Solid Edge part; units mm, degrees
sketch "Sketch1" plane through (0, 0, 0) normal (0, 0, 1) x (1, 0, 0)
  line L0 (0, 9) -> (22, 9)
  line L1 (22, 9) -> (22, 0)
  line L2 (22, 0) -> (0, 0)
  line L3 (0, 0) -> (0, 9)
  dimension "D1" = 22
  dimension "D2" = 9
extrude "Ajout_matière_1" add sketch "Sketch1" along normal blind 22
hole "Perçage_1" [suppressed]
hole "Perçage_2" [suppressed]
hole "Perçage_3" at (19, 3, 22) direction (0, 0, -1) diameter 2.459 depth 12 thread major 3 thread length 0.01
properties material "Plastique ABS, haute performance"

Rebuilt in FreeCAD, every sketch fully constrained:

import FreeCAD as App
import Part
import Sketcher
from FreeCAD import Vector


def add_polygon(sketch, points):
    """Adds a closed chain of lines whose ends are joined by coincident constraints."""
    first, n = sketch.GeometryCount, len(points)
    for a, b in zip(points, points[1:] + points[:1]):
        sketch.addGeometry(Part.LineSegment(App.Vector(*a, 0), App.Vector(*b, 0)), False)
    for i in range(n):
        sketch.addConstraint(Sketcher.Constraint("Coincident", first + i, 2, first + (i + 1) % n, 1))

doc = App.newDocument("Part")
body = doc.addObject("PartDesign::Body", "Body")

# Sketch on XY plane
sketch1 = body.newObject("Sketcher::SketchObject", "Sketch")
sketch1.AttachmentSupport = (doc.getObject("XY_Plane"), [""])
sketch1.MapMode = "FlatFace"
add_polygon(sketch1, [(22, 9), (0, 9), (0, 0), (22, 0)])  # lines 0-3
sketch1.addConstraint(Sketcher.Constraint("Horizontal", 0))
sketch1.addConstraint(Sketcher.Constraint("Vertical", 1))
sketch1.addConstraint(Sketcher.Constraint("Horizontal", 2))
sketch1.addConstraint(Sketcher.Constraint("Vertical", 3))
sketch1.addConstraint(Sketcher.Constraint("Coincident", 1, 2, -1, 1))
sketch1.addConstraint(Sketcher.Constraint("DistanceX", 0, 2, 0, 1, 22.0))
sketch1.addConstraint(Sketcher.Constraint("DistanceY", 1, 2, 1, 1, 9.0))
pad1 = body.newObject("PartDesign::Pad", "Pad")
pad1.Profile = sketch1
pad1.Length = 22

# Sketch on XY plane
sketch2 = body.newObject("Sketcher::SketchObject", "Sketch001")
sketch2.AttachmentSupport = (doc.getObject("XY_Plane"), [""])
sketch2.MapMode = "FlatFace"
sketch2.AttachmentOffset = App.Placement(Vector(0, 0, 22), App.Rotation())
sketch2.addGeometry(Part.Circle(Vector(19, 3, 0), Vector(0, 0, 1), 1.2), False)
sketch2.addConstraint(Sketcher.Constraint("Diameter", 0, 2.459))
sketch2.addConstraint(Sketcher.Constraint("DistanceX", -1, 1, 0, 3, 19.0))
sketch2.addConstraint(Sketcher.Constraint("DistanceY", -1, 1, 0, 3, 3.0))
doc.recompute()
hole = body.newObject("PartDesign::Hole", "Hole")
hole.Profile = sketch2
hole.ThreadType = "None"
hole.Diameter = 2.459
hole.DepthType = "Dimension"
hole.Depth = 12
hole.DrillPoint = "Flat"

doc.recompute()
